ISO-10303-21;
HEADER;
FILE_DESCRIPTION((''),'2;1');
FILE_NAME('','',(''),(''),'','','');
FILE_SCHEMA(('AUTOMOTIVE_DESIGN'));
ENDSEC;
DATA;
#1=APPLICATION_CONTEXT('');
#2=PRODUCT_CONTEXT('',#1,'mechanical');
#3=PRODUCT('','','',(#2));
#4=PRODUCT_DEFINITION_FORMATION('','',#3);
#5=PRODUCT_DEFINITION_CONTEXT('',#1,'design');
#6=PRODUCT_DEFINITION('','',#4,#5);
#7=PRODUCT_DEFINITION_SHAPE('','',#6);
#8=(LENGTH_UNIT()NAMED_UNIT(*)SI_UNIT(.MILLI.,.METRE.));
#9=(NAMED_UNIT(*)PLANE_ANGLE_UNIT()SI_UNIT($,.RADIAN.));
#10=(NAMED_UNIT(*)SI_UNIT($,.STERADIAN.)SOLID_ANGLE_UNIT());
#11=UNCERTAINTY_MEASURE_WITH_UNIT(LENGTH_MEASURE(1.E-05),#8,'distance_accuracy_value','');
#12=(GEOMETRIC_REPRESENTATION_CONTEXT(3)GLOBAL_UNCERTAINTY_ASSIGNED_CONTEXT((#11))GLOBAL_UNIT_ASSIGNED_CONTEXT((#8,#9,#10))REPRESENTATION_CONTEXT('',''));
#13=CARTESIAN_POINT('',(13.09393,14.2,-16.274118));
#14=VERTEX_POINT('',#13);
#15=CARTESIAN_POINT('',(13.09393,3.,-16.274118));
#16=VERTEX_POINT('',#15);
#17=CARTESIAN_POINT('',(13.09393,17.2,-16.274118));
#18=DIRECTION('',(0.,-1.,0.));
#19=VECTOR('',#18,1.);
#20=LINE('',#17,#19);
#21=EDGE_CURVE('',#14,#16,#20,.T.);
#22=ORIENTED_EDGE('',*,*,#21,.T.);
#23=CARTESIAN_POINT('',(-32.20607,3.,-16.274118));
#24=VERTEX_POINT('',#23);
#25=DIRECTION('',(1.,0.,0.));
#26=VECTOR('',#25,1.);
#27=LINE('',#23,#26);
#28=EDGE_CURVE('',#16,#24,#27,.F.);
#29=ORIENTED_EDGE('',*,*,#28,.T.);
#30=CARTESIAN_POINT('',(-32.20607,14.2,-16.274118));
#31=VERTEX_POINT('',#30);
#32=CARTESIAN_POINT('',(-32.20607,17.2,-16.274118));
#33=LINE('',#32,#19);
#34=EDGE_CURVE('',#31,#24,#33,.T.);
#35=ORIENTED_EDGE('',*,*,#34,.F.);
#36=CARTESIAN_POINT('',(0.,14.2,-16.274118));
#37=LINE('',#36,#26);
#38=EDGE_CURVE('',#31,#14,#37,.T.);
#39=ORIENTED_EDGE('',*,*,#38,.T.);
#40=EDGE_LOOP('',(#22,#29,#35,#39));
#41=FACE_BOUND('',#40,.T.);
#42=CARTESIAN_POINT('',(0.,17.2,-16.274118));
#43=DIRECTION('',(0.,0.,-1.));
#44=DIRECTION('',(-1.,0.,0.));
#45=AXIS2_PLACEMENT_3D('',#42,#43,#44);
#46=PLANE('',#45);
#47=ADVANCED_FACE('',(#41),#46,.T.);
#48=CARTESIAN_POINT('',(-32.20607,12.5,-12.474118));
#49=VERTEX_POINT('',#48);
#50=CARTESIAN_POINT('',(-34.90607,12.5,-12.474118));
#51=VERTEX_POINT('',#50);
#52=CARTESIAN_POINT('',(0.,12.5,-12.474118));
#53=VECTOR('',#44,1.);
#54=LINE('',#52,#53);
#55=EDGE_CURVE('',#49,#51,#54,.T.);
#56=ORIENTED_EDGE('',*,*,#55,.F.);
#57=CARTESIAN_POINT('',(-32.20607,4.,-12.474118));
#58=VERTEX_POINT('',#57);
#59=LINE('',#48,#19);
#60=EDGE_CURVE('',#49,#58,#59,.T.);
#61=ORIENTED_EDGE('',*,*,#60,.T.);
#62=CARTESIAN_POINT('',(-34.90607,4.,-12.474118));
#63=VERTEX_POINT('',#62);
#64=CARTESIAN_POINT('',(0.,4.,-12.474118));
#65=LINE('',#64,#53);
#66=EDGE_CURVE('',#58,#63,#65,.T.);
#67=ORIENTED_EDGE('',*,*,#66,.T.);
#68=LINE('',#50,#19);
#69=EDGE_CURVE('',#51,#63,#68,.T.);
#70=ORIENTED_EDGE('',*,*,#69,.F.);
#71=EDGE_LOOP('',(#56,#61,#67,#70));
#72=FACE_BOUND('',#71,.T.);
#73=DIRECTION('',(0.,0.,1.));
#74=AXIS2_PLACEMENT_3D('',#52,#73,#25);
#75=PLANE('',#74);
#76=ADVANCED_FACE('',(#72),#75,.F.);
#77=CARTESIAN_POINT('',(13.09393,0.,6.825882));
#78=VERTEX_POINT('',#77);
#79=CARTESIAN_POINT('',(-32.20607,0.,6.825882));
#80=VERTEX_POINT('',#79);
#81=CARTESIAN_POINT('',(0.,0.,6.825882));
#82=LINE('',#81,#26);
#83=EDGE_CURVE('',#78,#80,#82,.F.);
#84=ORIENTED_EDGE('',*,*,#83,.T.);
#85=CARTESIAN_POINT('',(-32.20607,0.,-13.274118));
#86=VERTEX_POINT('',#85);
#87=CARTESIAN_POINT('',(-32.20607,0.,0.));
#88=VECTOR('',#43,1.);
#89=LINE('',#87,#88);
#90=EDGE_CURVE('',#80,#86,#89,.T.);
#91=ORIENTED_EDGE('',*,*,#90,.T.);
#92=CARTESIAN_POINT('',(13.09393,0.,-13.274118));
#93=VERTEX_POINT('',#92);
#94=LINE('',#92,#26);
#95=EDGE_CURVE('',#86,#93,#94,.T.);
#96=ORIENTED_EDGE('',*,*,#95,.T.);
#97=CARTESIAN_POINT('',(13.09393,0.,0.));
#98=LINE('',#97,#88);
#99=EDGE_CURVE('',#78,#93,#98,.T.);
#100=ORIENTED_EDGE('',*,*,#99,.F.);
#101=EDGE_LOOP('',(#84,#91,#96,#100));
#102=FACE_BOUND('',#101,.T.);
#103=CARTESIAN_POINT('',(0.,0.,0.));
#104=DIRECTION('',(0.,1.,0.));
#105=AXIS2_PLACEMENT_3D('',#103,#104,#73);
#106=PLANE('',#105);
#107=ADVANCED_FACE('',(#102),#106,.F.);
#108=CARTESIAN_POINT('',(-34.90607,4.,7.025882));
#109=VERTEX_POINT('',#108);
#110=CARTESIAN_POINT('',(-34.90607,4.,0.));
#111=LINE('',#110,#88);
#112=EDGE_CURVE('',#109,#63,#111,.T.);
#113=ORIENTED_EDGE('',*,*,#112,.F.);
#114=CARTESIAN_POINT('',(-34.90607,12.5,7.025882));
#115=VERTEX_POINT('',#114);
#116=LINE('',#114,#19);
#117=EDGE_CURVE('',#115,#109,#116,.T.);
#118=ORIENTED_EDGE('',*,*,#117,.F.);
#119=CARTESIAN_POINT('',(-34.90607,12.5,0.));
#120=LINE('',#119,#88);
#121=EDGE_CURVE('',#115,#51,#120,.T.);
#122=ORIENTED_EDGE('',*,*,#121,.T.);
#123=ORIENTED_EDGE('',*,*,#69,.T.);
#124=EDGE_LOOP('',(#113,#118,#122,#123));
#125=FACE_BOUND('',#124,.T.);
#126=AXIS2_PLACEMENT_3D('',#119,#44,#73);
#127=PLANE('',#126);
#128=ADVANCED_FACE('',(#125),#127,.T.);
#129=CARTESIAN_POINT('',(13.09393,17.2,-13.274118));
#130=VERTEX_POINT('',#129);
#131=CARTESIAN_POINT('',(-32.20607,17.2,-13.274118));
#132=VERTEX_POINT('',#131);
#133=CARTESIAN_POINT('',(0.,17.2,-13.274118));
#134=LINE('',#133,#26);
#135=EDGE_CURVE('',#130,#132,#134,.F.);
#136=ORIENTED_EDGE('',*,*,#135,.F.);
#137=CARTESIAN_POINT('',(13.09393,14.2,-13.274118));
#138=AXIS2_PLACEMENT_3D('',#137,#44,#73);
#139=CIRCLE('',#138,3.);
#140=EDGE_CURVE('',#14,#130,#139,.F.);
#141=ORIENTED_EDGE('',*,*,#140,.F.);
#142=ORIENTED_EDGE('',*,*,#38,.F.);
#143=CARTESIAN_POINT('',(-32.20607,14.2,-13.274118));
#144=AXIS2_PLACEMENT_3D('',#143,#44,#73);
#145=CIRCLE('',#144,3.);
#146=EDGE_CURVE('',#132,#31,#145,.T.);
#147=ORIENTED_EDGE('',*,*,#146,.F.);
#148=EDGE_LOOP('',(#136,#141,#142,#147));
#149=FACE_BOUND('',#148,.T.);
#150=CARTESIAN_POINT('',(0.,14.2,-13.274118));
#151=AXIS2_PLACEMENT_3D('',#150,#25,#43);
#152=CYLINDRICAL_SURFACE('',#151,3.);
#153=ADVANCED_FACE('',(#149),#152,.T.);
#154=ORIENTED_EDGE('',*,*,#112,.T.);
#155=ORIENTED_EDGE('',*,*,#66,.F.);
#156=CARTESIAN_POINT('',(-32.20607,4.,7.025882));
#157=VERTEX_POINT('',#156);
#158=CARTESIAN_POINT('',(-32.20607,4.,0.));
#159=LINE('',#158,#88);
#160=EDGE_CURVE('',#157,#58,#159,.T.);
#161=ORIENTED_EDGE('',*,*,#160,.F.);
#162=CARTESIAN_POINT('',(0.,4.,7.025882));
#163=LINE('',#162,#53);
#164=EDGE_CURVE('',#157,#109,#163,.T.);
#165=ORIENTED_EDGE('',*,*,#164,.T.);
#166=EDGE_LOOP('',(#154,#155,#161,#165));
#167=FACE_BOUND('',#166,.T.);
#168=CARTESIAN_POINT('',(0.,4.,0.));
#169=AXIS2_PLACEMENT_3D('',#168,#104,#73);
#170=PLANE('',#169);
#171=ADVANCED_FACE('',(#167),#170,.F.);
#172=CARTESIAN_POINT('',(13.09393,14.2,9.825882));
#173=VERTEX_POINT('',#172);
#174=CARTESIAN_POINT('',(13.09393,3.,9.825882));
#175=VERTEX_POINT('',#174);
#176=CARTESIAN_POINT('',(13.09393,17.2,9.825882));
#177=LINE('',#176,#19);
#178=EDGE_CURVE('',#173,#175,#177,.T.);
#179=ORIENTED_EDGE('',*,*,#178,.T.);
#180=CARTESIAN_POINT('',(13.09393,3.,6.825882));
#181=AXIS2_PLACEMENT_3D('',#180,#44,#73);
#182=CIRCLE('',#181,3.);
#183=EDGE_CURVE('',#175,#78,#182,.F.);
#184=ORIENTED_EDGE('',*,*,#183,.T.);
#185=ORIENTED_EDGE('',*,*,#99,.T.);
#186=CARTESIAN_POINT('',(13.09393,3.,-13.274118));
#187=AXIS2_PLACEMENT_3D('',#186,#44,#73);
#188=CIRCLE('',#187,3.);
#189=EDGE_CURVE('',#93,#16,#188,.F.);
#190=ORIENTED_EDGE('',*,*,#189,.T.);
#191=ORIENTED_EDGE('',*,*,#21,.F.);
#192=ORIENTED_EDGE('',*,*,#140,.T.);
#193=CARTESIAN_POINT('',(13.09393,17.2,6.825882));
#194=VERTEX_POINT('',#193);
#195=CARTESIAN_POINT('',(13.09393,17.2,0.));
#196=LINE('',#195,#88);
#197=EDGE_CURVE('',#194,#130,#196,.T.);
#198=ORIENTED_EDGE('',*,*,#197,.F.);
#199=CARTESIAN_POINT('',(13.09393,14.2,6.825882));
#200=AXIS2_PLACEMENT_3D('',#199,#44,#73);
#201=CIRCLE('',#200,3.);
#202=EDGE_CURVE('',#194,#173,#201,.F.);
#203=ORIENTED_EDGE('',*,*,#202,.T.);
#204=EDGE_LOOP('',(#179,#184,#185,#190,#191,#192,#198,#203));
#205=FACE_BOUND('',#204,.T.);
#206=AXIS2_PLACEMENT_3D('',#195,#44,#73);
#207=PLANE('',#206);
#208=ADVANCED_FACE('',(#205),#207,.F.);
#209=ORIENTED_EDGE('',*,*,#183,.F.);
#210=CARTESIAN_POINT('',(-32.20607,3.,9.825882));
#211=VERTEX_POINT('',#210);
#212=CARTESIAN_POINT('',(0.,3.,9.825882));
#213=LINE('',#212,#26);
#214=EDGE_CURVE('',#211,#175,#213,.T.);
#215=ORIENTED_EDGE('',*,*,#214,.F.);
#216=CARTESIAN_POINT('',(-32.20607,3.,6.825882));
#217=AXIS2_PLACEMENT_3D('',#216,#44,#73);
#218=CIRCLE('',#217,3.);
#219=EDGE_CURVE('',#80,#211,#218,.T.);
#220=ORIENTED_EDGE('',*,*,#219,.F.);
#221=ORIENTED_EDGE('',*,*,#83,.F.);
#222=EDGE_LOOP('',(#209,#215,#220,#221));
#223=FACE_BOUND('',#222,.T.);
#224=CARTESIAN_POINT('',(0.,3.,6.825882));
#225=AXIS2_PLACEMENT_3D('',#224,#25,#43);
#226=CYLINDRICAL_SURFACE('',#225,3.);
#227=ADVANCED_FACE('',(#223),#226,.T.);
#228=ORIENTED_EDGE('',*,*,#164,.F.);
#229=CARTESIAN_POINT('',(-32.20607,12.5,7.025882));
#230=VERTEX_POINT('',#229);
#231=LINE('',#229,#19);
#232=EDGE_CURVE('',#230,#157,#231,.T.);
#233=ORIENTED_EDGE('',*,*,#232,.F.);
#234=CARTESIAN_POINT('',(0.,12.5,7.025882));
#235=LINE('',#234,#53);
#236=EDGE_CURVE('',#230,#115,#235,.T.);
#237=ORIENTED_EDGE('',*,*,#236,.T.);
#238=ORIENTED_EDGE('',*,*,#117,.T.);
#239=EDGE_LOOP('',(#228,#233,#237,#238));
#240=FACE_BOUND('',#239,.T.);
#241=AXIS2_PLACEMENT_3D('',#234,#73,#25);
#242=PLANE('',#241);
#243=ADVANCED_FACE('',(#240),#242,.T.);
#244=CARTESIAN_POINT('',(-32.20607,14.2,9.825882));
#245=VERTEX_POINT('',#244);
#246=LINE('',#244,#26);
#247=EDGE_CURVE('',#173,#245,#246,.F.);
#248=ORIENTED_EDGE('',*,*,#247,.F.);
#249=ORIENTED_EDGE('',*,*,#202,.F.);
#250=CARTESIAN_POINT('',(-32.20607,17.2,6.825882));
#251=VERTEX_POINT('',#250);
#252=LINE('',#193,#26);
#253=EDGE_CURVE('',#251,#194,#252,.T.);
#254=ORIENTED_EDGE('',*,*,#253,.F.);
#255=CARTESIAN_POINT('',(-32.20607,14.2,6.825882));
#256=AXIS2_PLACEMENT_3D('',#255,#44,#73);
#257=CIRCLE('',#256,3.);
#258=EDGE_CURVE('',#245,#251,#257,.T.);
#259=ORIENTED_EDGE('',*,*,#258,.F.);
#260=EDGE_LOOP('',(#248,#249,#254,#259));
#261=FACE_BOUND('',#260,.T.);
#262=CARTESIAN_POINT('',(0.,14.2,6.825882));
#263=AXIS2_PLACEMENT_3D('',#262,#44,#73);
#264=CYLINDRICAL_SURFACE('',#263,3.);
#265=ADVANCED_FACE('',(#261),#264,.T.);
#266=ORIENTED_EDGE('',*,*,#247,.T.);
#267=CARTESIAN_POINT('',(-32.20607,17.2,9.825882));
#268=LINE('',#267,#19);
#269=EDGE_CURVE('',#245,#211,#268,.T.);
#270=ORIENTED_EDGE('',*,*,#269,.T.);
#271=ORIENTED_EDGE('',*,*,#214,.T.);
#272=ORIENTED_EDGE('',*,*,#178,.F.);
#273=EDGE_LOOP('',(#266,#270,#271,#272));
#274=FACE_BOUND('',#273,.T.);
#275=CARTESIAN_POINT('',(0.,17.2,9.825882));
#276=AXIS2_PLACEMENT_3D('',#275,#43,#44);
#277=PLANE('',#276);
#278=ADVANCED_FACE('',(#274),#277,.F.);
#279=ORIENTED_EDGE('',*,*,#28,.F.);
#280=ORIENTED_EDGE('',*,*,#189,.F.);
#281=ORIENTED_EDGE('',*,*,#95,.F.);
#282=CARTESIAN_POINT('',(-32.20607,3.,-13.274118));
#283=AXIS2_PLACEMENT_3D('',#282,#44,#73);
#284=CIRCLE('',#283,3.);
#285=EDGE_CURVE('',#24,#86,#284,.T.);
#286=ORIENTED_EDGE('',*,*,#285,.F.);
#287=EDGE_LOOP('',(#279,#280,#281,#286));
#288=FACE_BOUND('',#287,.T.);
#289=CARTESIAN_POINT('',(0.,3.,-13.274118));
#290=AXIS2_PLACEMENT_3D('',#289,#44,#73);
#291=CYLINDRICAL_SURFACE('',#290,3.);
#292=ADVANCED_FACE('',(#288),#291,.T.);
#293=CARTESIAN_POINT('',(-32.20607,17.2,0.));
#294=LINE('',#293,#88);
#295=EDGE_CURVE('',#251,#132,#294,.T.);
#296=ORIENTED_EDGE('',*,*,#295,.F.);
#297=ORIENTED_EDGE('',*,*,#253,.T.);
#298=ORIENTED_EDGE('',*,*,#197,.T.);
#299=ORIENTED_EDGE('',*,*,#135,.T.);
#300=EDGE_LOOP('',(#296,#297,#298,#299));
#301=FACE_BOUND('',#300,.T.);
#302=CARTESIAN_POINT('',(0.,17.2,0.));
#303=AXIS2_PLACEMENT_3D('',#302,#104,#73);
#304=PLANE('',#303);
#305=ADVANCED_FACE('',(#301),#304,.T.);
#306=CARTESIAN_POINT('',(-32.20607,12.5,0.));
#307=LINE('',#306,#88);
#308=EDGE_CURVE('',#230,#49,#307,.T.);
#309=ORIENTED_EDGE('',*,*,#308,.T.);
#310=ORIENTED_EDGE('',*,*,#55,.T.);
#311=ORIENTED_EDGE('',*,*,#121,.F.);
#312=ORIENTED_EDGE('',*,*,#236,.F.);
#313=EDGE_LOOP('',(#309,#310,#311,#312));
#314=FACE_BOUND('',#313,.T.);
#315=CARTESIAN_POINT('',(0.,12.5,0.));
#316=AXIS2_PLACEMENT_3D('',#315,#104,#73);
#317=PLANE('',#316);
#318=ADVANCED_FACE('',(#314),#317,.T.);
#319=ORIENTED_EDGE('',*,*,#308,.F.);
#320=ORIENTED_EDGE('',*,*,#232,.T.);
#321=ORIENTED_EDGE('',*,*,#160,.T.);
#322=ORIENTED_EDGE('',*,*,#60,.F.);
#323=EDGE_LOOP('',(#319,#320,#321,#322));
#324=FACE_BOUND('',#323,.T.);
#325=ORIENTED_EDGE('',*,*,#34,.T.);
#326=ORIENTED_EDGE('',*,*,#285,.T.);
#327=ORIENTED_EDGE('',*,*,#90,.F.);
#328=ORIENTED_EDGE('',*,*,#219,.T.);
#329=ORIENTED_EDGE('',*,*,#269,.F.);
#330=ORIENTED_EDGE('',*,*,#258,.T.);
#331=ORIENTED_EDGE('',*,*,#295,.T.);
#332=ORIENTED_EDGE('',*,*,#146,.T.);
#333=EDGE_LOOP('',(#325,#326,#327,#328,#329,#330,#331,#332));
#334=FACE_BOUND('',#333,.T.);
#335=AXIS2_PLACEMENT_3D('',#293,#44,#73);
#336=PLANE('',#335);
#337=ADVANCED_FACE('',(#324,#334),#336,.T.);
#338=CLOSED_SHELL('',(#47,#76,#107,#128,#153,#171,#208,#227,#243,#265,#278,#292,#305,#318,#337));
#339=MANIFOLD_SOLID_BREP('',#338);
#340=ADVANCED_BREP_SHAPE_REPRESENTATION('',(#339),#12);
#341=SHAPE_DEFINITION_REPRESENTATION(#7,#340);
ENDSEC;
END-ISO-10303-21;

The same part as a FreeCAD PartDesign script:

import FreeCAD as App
import Part
import Sketcher
from FreeCAD import Vector


def edges_at(feature, points):
    """Names of the edges that pass closest to the given points."""
    edges = feature.Shape.Edges
    near = lambda p: min(range(len(edges)), key=lambda i: edges[i].distToShape(Part.Vertex(*p))[0])
    return sorted({f"Edge{near(p) + 1}" for p in points})

doc = App.newDocument("Part")
body = doc.addObject("PartDesign::Body", "Body")

# Sketch on XZ plane
sketch1 = body.newObject("Sketcher::SketchObject", "Sketch")
sketch1.AttachmentSupport = (doc.getObject("XZ_Plane"), [""])
sketch1.MapMode = "FlatFace"
sketch1.addGeometry([
    Part.LineSegment(Vector(-32, -16, 0), Vector(-32, 10, 0)),
    Part.LineSegment(Vector(-32, 10, 0), Vector(13, 10, 0)),
    Part.LineSegment(Vector(13, 10, 0), Vector(13, -16, 0)),
    Part.LineSegment(Vector(13, -16, 0), Vector(-32, -16, 0)),
], False)
sketch1.addConstraint([
    Sketcher.Constraint("Coincident", 0, 2, 1, 1),
    Sketcher.Constraint("Coincident", 1, 2, 2, 1),
    Sketcher.Constraint("Coincident", 2, 2, 3, 1),
    Sketcher.Constraint("Coincident", 3, 2, 0, 1),
    Sketcher.Constraint("Vertical", 0),
    Sketcher.Constraint("Horizontal", 1),
    Sketcher.Constraint("Vertical", 2),
    Sketcher.Constraint("Horizontal", 3),
    Sketcher.Constraint("DistanceX", 1, 1, 1, 2, 45.3),
    Sketcher.Constraint("DistanceY", 0, 1, 0, 2, 26.1),
    Sketcher.Constraint("DistanceX", 0, 2, -1, 1, 32.20607),
    Sketcher.Constraint("DistanceY", -1, 1, 0, 2, 9.825882),
])
pad1 = body.newObject("PartDesign::Pad", "Pad")
pad1.Profile = sketch1
pad1.Length = 17.2
pad1.Reversed = True
doc.recompute()

fillet = body.newObject("PartDesign::Fillet", "Fillet")
fillet.Base = (pad1, edges_at(pad1, [
    (-9.556, 17.2, -16.274),
    (-9.556, 17.2, 9.826),
    (-9.556, 0, -16.274),
    (-9.556, 0, 9.826),
]))
fillet.Radius = 3

# Sketch on XZ plane
sketch2 = body.newObject("Sketcher::SketchObject", "Sketch001")
sketch2.AttachmentSupport = (doc.getObject("XZ_Plane"), [""])
sketch2.MapMode = "FlatFace"
sketch2.AttachmentOffset = App.Placement(Vector(0, 0, -4), App.Rotation())
sketch2.addGeometry([
    Part.LineSegment(Vector(-34.9, -12.5, 0), Vector(-34.9, 7, 0)),
    Part.LineSegment(Vector(-34.9, 7, 0), Vector(-32.2, 7, 0)),
    Part.LineSegment(Vector(-32.2, 7, 0), Vector(-32.2, -12.5, 0)),
    Part.LineSegment(Vector(-32.2, -12.5, 0), Vector(-34.9, -12.5, 0)),
], False)
sketch2.addConstraint([
    Sketcher.Constraint("Coincident", 0, 2, 1, 1),
    Sketcher.Constraint("Coincident", 1, 2, 2, 1),
    Sketcher.Constraint("Coincident", 2, 2, 3, 1),
    Sketcher.Constraint("Coincident", 3, 2, 0, 1),
    Sketcher.Constraint("Vertical", 0),
    Sketcher.Constraint("Horizontal", 1),
    Sketcher.Constraint("Vertical", 2),
    Sketcher.Constraint("Horizontal", 3),
    Sketcher.Constraint("DistanceX", 1, 1, 1, 2, 2.7),
    Sketcher.Constraint("DistanceY", 0, 1, 0, 2, 19.5),
    Sketcher.Constraint("DistanceX", 0, 2, -1, 1, 34.90607),
    Sketcher.Constraint("DistanceY", -1, 1, 0, 2, 7.025882),
])
pad2 = body.newObject("PartDesign::Pad", "Pad001")
pad2.Profile = sketch2
pad2.Length = 8.5
pad2.Reversed = True

doc.recompute()
